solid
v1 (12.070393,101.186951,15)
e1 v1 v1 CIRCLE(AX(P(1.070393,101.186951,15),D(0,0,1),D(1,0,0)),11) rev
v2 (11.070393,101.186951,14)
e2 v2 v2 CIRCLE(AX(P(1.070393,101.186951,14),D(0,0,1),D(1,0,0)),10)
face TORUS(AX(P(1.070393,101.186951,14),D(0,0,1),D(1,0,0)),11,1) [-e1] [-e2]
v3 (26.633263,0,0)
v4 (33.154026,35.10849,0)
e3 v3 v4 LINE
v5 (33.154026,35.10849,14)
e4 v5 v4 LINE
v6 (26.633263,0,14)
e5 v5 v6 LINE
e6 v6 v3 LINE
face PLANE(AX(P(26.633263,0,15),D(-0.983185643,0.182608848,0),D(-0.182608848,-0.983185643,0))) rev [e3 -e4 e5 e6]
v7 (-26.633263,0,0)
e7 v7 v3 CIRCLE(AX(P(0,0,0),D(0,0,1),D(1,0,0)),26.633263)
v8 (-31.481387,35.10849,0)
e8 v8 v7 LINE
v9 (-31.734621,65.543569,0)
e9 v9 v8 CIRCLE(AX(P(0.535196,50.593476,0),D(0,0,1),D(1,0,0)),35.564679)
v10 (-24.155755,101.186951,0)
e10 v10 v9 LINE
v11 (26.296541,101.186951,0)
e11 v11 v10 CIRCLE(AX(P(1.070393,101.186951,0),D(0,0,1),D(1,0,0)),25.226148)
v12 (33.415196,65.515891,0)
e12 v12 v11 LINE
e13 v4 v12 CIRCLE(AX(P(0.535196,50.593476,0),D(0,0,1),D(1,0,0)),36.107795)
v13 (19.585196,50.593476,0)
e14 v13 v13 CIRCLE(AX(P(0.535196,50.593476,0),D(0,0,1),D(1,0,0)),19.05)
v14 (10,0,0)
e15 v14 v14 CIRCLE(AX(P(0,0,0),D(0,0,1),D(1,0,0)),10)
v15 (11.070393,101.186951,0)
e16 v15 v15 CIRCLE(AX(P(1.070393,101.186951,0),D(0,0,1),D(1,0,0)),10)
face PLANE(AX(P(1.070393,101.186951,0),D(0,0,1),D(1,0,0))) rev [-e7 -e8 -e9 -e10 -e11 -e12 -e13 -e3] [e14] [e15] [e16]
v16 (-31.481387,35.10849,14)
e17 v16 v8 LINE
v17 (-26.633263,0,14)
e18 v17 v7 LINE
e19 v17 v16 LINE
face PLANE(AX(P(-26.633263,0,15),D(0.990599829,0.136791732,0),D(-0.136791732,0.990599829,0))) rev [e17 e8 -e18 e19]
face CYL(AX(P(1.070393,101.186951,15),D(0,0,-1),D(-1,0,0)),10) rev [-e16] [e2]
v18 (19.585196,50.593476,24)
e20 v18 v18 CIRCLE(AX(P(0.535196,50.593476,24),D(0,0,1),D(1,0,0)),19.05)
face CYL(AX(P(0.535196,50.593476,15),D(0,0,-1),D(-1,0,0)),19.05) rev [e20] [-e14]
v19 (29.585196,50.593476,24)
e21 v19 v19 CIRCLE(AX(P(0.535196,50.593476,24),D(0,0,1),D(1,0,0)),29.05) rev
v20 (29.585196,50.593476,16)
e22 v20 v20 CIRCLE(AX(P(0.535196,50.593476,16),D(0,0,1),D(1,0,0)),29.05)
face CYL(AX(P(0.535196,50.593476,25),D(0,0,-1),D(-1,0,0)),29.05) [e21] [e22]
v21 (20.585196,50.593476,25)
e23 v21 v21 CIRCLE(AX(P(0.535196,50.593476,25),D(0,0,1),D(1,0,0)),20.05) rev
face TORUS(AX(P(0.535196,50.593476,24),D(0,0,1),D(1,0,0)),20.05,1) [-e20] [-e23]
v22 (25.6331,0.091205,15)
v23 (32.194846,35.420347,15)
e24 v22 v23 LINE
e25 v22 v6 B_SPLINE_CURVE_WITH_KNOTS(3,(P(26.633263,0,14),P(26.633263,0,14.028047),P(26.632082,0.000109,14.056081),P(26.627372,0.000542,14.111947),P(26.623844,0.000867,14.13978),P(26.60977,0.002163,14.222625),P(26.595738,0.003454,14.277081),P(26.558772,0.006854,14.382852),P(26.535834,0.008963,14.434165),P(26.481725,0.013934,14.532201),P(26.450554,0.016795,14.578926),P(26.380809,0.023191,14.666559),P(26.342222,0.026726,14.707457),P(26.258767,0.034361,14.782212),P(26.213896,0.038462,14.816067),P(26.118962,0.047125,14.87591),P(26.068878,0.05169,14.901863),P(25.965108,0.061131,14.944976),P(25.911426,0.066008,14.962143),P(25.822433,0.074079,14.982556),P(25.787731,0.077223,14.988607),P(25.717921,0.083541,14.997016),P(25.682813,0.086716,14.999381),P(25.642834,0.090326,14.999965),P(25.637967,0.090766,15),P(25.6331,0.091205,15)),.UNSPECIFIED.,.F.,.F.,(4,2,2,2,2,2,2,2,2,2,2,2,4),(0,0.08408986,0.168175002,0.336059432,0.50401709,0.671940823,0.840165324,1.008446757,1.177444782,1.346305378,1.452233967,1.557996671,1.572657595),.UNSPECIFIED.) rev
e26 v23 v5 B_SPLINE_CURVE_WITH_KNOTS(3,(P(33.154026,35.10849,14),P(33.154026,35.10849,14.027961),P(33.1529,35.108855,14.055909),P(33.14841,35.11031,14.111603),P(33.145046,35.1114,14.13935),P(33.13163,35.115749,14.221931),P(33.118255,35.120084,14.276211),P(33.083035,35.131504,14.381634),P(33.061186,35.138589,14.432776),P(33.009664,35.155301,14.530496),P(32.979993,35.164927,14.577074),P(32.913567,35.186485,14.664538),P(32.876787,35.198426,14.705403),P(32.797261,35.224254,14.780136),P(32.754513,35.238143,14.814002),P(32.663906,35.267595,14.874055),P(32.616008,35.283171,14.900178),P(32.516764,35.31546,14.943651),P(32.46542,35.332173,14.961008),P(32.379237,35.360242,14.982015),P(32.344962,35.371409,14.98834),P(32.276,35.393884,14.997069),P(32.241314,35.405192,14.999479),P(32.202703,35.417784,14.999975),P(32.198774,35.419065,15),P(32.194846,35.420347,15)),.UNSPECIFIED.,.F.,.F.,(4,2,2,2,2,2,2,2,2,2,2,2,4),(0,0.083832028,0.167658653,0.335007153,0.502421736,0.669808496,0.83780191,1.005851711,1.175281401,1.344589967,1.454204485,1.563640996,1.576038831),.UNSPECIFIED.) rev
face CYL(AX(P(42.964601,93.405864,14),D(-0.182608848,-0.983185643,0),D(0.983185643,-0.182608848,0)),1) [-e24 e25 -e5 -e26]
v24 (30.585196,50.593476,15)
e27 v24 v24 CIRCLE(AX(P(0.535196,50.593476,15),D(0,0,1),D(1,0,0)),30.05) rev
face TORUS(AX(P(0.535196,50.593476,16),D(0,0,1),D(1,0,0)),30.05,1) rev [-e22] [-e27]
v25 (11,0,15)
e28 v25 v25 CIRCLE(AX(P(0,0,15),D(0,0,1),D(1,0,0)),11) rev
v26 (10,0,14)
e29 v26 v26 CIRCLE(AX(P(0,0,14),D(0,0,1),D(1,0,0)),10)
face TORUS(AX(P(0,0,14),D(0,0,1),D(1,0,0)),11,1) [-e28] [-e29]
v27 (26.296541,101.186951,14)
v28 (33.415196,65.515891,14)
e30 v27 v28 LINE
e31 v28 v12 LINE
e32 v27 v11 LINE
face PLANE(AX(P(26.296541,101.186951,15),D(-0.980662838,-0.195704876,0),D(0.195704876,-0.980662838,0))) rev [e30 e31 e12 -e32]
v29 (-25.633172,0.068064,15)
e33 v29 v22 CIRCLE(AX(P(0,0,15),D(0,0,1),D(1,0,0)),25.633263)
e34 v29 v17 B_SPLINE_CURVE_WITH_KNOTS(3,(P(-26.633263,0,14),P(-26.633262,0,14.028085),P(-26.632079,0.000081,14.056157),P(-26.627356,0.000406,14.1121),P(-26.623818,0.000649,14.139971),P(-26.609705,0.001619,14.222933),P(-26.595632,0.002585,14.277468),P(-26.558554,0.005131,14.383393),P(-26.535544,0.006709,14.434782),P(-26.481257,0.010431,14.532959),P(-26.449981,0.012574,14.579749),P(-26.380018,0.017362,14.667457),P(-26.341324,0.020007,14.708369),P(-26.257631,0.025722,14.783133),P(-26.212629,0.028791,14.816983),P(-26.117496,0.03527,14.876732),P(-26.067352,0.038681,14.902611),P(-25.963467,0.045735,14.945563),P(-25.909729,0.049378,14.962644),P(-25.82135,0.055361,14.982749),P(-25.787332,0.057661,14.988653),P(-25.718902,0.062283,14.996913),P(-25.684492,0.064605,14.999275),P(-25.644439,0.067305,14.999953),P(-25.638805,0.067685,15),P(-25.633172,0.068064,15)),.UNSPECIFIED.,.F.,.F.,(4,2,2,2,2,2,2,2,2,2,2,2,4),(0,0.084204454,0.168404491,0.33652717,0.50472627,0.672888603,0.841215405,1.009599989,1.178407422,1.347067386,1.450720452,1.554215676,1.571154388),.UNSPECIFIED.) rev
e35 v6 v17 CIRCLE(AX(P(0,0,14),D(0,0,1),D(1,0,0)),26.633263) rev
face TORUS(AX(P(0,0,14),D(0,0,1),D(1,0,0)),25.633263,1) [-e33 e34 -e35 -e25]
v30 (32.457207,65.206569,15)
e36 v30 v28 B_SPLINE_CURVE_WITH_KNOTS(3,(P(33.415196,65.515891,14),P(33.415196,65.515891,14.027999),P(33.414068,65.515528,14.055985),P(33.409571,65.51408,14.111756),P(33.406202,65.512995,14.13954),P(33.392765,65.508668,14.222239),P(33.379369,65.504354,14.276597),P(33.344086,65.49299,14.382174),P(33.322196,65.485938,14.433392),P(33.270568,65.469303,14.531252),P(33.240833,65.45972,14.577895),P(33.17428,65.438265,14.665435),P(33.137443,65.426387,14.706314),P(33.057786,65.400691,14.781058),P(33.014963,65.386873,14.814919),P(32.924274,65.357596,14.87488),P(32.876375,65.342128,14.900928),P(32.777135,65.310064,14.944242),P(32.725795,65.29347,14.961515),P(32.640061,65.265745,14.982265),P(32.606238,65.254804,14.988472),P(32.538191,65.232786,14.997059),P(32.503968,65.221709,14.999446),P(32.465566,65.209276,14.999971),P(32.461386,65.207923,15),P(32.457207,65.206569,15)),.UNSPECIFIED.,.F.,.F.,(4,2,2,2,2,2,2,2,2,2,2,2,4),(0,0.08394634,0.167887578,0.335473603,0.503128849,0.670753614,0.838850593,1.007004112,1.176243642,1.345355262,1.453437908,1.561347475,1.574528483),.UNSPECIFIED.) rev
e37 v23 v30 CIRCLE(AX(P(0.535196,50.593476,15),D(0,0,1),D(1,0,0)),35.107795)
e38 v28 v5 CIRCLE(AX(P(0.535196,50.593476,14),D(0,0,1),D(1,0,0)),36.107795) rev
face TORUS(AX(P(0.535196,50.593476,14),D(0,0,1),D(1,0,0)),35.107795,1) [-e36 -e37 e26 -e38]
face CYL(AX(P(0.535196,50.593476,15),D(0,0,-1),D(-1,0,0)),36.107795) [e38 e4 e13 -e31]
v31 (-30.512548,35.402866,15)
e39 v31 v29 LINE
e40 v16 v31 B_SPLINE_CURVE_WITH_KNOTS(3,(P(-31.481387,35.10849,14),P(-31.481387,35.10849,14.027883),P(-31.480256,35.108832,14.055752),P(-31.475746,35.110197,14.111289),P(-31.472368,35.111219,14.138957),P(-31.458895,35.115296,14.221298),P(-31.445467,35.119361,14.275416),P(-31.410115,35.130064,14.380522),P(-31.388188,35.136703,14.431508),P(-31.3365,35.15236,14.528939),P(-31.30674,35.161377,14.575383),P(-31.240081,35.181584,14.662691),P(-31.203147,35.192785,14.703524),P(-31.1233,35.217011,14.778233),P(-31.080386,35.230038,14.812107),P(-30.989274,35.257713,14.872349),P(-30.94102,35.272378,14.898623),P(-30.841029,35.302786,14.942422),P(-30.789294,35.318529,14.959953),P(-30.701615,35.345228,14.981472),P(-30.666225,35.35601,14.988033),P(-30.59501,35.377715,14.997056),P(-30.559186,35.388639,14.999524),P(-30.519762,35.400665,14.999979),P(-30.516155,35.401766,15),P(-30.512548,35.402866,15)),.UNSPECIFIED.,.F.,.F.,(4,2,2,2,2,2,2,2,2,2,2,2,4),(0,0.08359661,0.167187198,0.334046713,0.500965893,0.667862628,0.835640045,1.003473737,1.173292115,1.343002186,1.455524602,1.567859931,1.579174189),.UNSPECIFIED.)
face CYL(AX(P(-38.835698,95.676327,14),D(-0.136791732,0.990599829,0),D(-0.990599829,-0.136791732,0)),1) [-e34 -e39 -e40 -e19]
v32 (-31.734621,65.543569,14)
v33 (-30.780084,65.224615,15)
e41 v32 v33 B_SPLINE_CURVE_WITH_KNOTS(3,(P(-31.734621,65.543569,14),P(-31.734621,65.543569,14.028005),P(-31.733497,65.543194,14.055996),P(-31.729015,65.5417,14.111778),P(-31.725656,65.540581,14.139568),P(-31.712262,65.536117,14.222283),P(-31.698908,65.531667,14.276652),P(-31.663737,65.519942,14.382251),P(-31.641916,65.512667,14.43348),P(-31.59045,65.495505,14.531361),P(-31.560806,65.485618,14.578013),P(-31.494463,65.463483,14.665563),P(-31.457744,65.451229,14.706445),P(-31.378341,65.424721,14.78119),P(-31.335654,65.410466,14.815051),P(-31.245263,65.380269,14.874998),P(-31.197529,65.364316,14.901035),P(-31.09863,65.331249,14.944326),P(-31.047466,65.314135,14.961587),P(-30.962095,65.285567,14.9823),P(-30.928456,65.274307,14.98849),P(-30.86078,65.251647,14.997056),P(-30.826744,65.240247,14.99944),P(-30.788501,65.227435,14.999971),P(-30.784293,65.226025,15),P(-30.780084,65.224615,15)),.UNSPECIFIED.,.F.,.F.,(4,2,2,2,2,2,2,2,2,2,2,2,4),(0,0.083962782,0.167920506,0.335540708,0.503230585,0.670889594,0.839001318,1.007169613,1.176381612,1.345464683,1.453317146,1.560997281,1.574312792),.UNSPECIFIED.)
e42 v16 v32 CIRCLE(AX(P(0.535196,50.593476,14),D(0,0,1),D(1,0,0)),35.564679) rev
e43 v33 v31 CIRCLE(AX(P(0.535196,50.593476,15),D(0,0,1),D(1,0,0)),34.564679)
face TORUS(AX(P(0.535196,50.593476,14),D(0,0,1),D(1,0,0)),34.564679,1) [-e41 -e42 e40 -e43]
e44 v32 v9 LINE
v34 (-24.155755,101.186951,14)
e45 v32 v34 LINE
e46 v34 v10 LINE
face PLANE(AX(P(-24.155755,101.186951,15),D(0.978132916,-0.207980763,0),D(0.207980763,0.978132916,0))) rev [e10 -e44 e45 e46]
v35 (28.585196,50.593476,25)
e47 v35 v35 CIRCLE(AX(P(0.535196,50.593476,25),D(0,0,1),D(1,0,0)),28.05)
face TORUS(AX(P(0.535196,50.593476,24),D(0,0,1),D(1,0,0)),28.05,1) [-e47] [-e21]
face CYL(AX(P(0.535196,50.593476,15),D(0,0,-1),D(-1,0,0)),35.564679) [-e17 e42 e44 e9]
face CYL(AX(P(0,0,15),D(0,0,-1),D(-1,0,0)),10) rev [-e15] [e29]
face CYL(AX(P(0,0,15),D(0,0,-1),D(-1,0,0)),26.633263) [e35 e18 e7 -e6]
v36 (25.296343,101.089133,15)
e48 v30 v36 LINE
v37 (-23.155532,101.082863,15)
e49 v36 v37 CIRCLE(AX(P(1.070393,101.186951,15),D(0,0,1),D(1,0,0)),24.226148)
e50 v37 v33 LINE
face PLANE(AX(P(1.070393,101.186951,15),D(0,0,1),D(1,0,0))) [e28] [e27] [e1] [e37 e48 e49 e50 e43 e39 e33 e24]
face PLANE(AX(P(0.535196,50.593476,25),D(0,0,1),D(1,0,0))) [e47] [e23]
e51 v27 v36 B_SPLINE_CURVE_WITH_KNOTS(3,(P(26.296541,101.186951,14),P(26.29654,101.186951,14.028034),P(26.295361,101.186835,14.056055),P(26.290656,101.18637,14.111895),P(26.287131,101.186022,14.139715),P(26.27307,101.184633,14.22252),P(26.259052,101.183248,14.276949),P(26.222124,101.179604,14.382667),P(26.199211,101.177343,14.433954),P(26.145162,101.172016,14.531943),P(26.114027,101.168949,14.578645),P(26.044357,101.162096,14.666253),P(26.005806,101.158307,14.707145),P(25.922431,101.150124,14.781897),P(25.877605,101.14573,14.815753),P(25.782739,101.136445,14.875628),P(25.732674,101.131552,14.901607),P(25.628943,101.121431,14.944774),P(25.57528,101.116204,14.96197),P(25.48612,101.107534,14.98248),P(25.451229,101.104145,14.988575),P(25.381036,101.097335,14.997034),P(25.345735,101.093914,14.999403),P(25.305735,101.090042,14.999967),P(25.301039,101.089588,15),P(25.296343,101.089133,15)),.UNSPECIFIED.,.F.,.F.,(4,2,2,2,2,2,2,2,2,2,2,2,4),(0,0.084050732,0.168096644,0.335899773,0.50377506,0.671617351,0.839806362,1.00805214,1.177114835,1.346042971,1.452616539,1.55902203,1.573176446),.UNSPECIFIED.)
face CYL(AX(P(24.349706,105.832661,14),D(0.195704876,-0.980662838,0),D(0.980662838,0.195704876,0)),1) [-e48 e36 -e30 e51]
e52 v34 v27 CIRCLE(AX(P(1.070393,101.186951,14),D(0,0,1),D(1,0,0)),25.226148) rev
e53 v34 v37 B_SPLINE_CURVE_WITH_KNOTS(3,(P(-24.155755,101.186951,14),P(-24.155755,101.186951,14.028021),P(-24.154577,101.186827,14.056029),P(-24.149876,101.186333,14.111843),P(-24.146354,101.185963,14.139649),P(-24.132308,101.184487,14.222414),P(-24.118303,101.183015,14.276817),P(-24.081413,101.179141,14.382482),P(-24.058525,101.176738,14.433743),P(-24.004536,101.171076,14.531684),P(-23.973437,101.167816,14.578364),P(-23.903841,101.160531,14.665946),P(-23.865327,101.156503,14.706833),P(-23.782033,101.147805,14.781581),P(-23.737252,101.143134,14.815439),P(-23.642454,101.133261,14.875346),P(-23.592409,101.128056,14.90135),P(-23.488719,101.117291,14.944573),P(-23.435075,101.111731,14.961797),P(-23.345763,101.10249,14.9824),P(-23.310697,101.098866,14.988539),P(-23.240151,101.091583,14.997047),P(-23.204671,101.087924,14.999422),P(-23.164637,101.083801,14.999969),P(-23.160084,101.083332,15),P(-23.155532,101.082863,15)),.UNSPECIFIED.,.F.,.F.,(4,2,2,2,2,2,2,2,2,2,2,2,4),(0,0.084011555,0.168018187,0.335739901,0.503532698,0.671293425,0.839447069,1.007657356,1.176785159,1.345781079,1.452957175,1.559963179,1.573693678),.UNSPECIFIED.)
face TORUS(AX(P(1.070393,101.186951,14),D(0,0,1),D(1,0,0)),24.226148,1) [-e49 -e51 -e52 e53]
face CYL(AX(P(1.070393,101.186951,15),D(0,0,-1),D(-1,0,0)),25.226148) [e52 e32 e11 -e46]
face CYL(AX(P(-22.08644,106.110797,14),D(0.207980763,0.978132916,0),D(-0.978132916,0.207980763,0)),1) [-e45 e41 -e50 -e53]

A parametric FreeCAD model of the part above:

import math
import FreeCAD as App
import Part
import Sketcher
from FreeCAD import Vector


def edges_at(feature, points):
    """Names of the edges that pass closest to the given points."""
    edges = feature.Shape.Edges
    near = lambda p: min(range(len(edges)), key=lambda i: edges[i].distToShape(Part.Vertex(*p))[0])
    return sorted({f"Edge{near(p) + 1}" for p in points})

doc = App.newDocument("Part")
body = doc.addObject("PartDesign::Body", "Body")

# Sketch on XY plane
sketch1 = body.newObject("Sketcher::SketchObject", "Sketch")
sketch1.AttachmentSupport = (doc.getObject("XY_Plane"), [""])
sketch1.MapMode = "FlatFace"
sketch1.addGeometry(Part.LineSegment(Vector(-24, 101, 0), Vector(-32, 66, 0)), False)
sketch1.addGeometry(Part.ArcOfCircle(Part.Circle(Vector(1, 51, 0), Vector(0, 0, 1), 36), math.radians(155), math.radians(206)), False)
sketch1.addGeometry(Part.LineSegment(Vector(-31, 35, 0), Vector(-27, 0, 0)), False)
sketch1.addGeometry(Part.ArcOfCircle(Part.Circle(Vector(0, 0, 0), Vector(0, 0, 1), 27), math.radians(180), math.radians(360)), False)
sketch1.addGeometry(Part.LineSegment(Vector(27, 0, 0), Vector(33, 35, 0)), False)
sketch1.addGeometry(Part.ArcOfCircle(Part.Circle(Vector(1, 51, 0), Vector(0, 0, 1), 36), math.radians(-25), math.radians(24)), False)
sketch1.addGeometry(Part.LineSegment(Vector(33, 66, 0), Vector(26, 101, 0)), False)
sketch1.addGeometry(Part.ArcOfCircle(Part.Circle(Vector(1, 101, 0), Vector(0, 0, 1), 25), math.radians(0), math.radians(180)), False)
sketch1.addGeometry(Part.Circle(Vector(0, 0, 0), Vector(0, 0, 1), 10), False)
sketch1.addGeometry(Part.Circle(Vector(1, 51, 0), Vector(0, 0, 1), 19), False)
sketch1.addGeometry(Part.Circle(Vector(1, 101, 0), Vector(0, 0, 1), 10), False)
sketch1.addConstraint(Sketcher.Constraint("Coincident", 0, 2, 1, 1))
sketch1.addConstraint(Sketcher.Constraint("Coincident", 1, 2, 2, 1))
sketch1.addConstraint(Sketcher.Constraint("Coincident", 2, 2, 3, 1))
sketch1.addConstraint(Sketcher.Constraint("Coincident", 3, 2, 4, 1))
sketch1.addConstraint(Sketcher.Constraint("Coincident", 4, 2, 5, 1))
sketch1.addConstraint(Sketcher.Constraint("Coincident", 5, 2, 6, 1))
sketch1.addConstraint(Sketcher.Constraint("Coincident", 6, 2, 7, 1))
sketch1.addConstraint(Sketcher.Constraint("Coincident", 7, 2, 0, 1))
sketch1.addConstraint(Sketcher.Constraint("Coincident", 3, 3, -1, 1))
sketch1.addConstraint(Sketcher.Constraint("Coincident", 8, 3, -1, 1))
sketch1.addConstraint(Sketcher.Constraint("Coincident", 5, 3, 1, 3))
sketch1.addConstraint(Sketcher.Constraint("Coincident", 9, 3, 1, 3))
sketch1.addConstraint(Sketcher.Constraint("Coincident", 10, 3, 7, 3))
sketch1.addConstraint(Sketcher.Constraint("Equal", 8, 10))
sketch1.addConstraint(Sketcher.Constraint("PointOnObject", 2, 2, -1))
sketch1.addConstraint(Sketcher.Constraint("PointOnObject", 3, 2, -1))
sketch1.addConstraint(Sketcher.Constraint("Horizontal", 1, 2, 4, 2))
sketch1.addConstraint(Sketcher.Constraint("Horizontal", 10, 3, 6, 2))
sketch1.addConstraint(Sketcher.Constraint("Horizontal", 6, 2, 7, 2))
sketch1.addConstraint(Sketcher.Constraint("Diameter", 8, 20.0))
sketch1.addConstraint(Sketcher.Constraint("Diameter", 9, 38.1))
sketch1.addConstraint(Sketcher.Constraint("Radius", 1, 35.564679))
sketch1.addConstraint(Sketcher.Constraint("Radius", 7, 25.226148))
sketch1.addConstraint(Sketcher.Constraint("DistanceX", 1, 3, 5, 2, 32.879999))
sketch1.addConstraint(Sketcher.Constraint("Radius", 3, 26.633263))
sketch1.addConstraint(Sketcher.Constraint("Radius", 5, 36.107795))
sketch1.addConstraint(Sketcher.Constraint("DistanceY", 4, 2, 5, 2, 30.407402))
sketch1.addConstraint(Sketcher.Constraint("Distance", 6, 36.374439))
sketch1.addConstraint(Sketcher.Constraint("DistanceY", -1, 1, 7, 3, 101.186951))
sketch1.addConstraint(Sketcher.Constraint("DistanceX", 0, 2, -1, 1, 31.734621))
sketch1.addConstraint(Sketcher.Constraint("DistanceY", -1, 1, 0, 2, 65.543569))
sketch1.addConstraint(Sketcher.Constraint("DistanceY", -1, 1, 1, 2, 35.10849))
pad1 = body.newObject("PartDesign::Pad", "Pad")
pad1.Profile = sketch1
pad1.Length = 15

# Sketch on XY plane
sketch2 = body.newObject("Sketcher::SketchObject", "Sketch001")
sketch2.AttachmentSupport = (doc.getObject("XY_Plane"), [""])
sketch2.MapMode = "FlatFace"
sketch2.AttachmentOffset = App.Placement(Vector(0, 0, 15), App.Rotation())
sketch2.addGeometry(Part.Circle(Vector(1, 51, 0), Vector(0, 0, 1), 29), False)
sketch2.addGeometry(Part.Circle(Vector(1, 51, 0), Vector(0, 0, 1), 19), False)
sketch2.addConstraint(Sketcher.Constraint("Coincident", 1, 3, 0, 3))
sketch2.addConstraint(Sketcher.Constraint("Diameter", 0, 58.1))
sketch2.addConstraint(Sketcher.Constraint("Diameter", 1, 38.1))
sketch2.addConstraint(Sketcher.Constraint("DistanceX", -1, 1, 0, 3, 0.535196))
sketch2.addConstraint(Sketcher.Constraint("DistanceY", -1, 1, 0, 3, 50.593476))
pad2 = body.newObject("PartDesign::Pad", "Pad001")
pad2.Profile = sketch2
pad2.Length = 10
doc.recompute()

fillet = body.newObject("PartDesign::Fillet", "Fillet")
fillet.Base = (pad2, edges_at(pad2, [
    (-35.028, 50.298, 15),
    (-29.057, 17.554, 15),
    (0, -26.633, 15),
    (-8.93, 101.187, 15),
    (29.894, 17.554, 15),
    (-10, 0, 15),
    (36.642, 50.283, 15),
    (29.856, 83.351, 15),
    (-28.515, 50.593, 15),
    (1.07, 126.413, 15),
    (-27.945, 83.365, 15),
]))
fillet.Radius = 1
doc.recompute()

fillet2 = body.newObject("PartDesign::Fillet", "Fillet001")
fillet2.Base = (fillet, edges_at(fillet, [(-28.515, 50.593, 25), (-18.515, 50.593, 25)]))
fillet2.Radius = 1

doc.recompute()
